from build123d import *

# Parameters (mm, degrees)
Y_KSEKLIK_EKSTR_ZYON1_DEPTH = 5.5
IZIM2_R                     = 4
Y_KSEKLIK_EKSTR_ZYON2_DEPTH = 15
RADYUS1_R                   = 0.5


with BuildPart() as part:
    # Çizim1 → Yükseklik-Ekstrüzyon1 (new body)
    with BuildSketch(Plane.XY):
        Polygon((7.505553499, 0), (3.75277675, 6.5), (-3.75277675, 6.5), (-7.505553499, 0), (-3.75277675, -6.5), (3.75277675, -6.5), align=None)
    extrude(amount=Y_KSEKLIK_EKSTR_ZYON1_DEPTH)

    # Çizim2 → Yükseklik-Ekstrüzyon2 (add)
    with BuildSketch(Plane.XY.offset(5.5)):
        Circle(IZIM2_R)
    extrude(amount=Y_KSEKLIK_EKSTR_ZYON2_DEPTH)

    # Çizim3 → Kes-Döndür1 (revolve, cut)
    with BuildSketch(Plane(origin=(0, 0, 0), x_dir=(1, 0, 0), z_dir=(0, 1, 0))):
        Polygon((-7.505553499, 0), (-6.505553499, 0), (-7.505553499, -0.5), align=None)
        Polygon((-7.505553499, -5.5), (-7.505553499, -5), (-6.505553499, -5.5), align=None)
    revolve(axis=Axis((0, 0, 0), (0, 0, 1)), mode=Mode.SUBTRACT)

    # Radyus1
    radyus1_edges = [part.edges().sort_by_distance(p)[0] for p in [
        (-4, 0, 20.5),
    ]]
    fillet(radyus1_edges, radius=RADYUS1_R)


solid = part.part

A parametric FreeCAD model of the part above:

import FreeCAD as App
import Part
import Sketcher

V = App.Vector
Q = App.Units.Quantity


def edges_at(feature, points):
    """Names of the edges that pass closest to the given points."""
    edges = feature.Shape.Edges
    near = lambda p: min(range(len(edges)), key=lambda i: edges[i].distToShape(Part.Vertex(*p))[0])
    return sorted({f"Edge{near(p) + 1}" for p in points})

doc = App.newDocument("Part")
body = doc.addObject("PartDesign::Body", "Body")

# Sketch on XY plane
sketch1 = body.newObject("Sketcher::SketchObject", "Sketch")
sketch1.AttachmentSupport = (doc.getObject("XY_Plane"), [""])
sketch1.MapMode = "FlatFace"
sketch1.addGeometry(Part.LineSegment(V(8, 0, 0), V(4, 6, 0)), False)
sketch1.addGeometry(Part.LineSegment(V(4, 6, 0), V(-4, 6, 0)), False)
sketch1.addGeometry(Part.LineSegment(V(-4, 6, 0), V(-8, 0, 0)), False)
sketch1.addGeometry(Part.LineSegment(V(-8, 0, 0), V(-4, -6, 0)), False)
sketch1.addGeometry(Part.LineSegment(V(-4, -6, 0), V(4, -6, 0)), False)
sketch1.addGeometry(Part.LineSegment(V(4, -6, 0), V(8, 0, 0)), False)
sketch1.addConstraint(Sketcher.Constraint("Coincident", 0, 2, 1, 1))
sketch1.addConstraint(Sketcher.Constraint("Coincident", 1, 2, 2, 1))
sketch1.addConstraint(Sketcher.Constraint("Coincident", 2, 2, 3, 1))
sketch1.addConstraint(Sketcher.Constraint("Coincident", 3, 2, 4, 1))
sketch1.addConstraint(Sketcher.Constraint("Coincident", 4, 2, 5, 1))
sketch1.addConstraint(Sketcher.Constraint("Coincident", 5, 2, 0, 1))
sketch1.addConstraint(Sketcher.Constraint("Horizontal", 1))
sketch1.addConstraint(Sketcher.Constraint("Horizontal", 4))
sketch1.addConstraint(Sketcher.Constraint("Symmetric", 0, 2, 3, 2, -1, 1))
sketch1.addConstraint(Sketcher.Constraint("Symmetric", 2, 2, 5, 2, -1, 1))
sketch1.addConstraint(Sketcher.Constraint("PointOnObject", 2, 2, -1))
sketch1.addConstraint(Sketcher.Constraint("Parallel", 2, 5))
sketch1.addConstraint(Sketcher.Constraint("Vertical", 1, 2, 3, 2))
sketch1.addConstraint(Sketcher.Constraint("Angle", 0, Q("120 deg")))
sketch1.addConstraint(Sketcher.Constraint("DistanceY", 3, 2, 1, 2, 13.0))
sketch1.addConstraint(Sketcher.Constraint("DistanceX", 1, 2, 1, 1, 7.505554))
pad1 = body.newObject("PartDesign::Pad", "Pad")
pad1.Profile = sketch1
pad1.Length = 5.5

# Sketch on XY plane
sketch2 = body.newObject("Sketcher::SketchObject", "Sketch001")
sketch2.AttachmentSupport = (doc.getObject("XY_Plane"), [""])
sketch2.MapMode = "FlatFace"
sketch2.AttachmentOffset = App.Placement(V(0, 0, 5.5), App.Rotation())
sketch2.addGeometry(Part.Circle(V(0, 0, 0), V(0, 0, 1), 4), False)
sketch2.addConstraint(Sketcher.Constraint("Coincident", 0, 3, -1, 1))
sketch2.addConstraint(Sketcher.Constraint("Diameter", 0, 8.0))
pad2 = body.newObject("PartDesign::Pad", "Pad001")
pad2.Profile = sketch2
pad2.Length = 15

# Sketch on XZ plane
sketch3 = body.newObject("Sketcher::SketchObject", "Sketch002")
sketch3.AttachmentSupport = (doc.getObject("XZ_Plane"), [""])
sketch3.MapMode = "FlatFace"
sketch3.addGeometry(Part.LineSegment(V(-6.5, 0, 0), V(-7.5, 0, 0)), False)
sketch3.addGeometry(Part.LineSegment(V(-7.5, 0, 0), V(-7.5, 0.5, 0)), False)
sketch3.addGeometry(Part.LineSegment(V(-7.5, 0.5, 0), V(-6.5, 0, 0)), False)
sketch3.addGeometry(Part.LineSegment(V(-7.5, 5, 0), V(-7.5, 5.5, 0)), False)
sketch3.addGeometry(Part.LineSegment(V(-7.5, 5.5, 0), V(-6.5, 5.5, 0)), False)
sketch3.addGeometry(Part.LineSegment(V(-6.5, 5.5, 0), V(-7.5, 5, 0)), False)
sketch3.addConstraint(Sketcher.Constraint("Coincident", 0, 2, 1, 1))
sketch3.addConstraint(Sketcher.Constraint("Coincident", 1, 2, 2, 1))
sketch3.addConstraint(Sketcher.Constraint("Coincident", 2, 2, 0, 1))
sketch3.addConstraint(Sketcher.Constraint("Coincident", 3, 2, 4, 1))
sketch3.addConstraint(Sketcher.Constraint("Coincident", 4, 2, 5, 1))
sketch3.addConstraint(Sketcher.Constraint("Coincident", 5, 2, 3, 1))
sketch3.addConstraint(Sketcher.Constraint("Horizontal", 0))
sketch3.addConstraint(Sketcher.Constraint("Vertical", 1))
sketch3.addConstraint(Sketcher.Constraint("Vertical", 3))
sketch3.addConstraint(Sketcher.Constraint("Horizontal", 4))
sketch3.addConstraint(Sketcher.Constraint("PointOnObject", 0, 2, -1))
sketch3.addConstraint(Sketcher.Constraint("Vertical", 1, 2, 3, 2))
sketch3.addConstraint(Sketcher.Constraint("Vertical", 2, 2, 4, 2))
sketch3.addConstraint(Sketcher.Constraint("Equal", 1, 3))
sketch3.addConstraint(Sketcher.Constraint("DistanceX", 0, 2, 0, 1, 1.0))
sketch3.addConstraint(Sketcher.Constraint("DistanceY", 1, 1, 1, 2, 0.5))
sketch3.addConstraint(Sketcher.Constraint("DistanceY", -1, 1, 5, 2, 5.0))
sketch3.addConstraint(Sketcher.Constraint("DistanceX", 0, 2, -1, 1, 7.505553))
groove = body.newObject("PartDesign::Groove", "Groove")
groove.Profile = sketch3
groove.ReferenceAxis = (sketch3, ["V_Axis"])
groove.Angle = 360
doc.recompute()

fillet = body.newObject("PartDesign::Fillet", "Fillet")
fillet.Base = (groove, edges_at(groove, [(-4, 0, 20.5)]))
fillet.Radius = 0.5

doc.recompute()
